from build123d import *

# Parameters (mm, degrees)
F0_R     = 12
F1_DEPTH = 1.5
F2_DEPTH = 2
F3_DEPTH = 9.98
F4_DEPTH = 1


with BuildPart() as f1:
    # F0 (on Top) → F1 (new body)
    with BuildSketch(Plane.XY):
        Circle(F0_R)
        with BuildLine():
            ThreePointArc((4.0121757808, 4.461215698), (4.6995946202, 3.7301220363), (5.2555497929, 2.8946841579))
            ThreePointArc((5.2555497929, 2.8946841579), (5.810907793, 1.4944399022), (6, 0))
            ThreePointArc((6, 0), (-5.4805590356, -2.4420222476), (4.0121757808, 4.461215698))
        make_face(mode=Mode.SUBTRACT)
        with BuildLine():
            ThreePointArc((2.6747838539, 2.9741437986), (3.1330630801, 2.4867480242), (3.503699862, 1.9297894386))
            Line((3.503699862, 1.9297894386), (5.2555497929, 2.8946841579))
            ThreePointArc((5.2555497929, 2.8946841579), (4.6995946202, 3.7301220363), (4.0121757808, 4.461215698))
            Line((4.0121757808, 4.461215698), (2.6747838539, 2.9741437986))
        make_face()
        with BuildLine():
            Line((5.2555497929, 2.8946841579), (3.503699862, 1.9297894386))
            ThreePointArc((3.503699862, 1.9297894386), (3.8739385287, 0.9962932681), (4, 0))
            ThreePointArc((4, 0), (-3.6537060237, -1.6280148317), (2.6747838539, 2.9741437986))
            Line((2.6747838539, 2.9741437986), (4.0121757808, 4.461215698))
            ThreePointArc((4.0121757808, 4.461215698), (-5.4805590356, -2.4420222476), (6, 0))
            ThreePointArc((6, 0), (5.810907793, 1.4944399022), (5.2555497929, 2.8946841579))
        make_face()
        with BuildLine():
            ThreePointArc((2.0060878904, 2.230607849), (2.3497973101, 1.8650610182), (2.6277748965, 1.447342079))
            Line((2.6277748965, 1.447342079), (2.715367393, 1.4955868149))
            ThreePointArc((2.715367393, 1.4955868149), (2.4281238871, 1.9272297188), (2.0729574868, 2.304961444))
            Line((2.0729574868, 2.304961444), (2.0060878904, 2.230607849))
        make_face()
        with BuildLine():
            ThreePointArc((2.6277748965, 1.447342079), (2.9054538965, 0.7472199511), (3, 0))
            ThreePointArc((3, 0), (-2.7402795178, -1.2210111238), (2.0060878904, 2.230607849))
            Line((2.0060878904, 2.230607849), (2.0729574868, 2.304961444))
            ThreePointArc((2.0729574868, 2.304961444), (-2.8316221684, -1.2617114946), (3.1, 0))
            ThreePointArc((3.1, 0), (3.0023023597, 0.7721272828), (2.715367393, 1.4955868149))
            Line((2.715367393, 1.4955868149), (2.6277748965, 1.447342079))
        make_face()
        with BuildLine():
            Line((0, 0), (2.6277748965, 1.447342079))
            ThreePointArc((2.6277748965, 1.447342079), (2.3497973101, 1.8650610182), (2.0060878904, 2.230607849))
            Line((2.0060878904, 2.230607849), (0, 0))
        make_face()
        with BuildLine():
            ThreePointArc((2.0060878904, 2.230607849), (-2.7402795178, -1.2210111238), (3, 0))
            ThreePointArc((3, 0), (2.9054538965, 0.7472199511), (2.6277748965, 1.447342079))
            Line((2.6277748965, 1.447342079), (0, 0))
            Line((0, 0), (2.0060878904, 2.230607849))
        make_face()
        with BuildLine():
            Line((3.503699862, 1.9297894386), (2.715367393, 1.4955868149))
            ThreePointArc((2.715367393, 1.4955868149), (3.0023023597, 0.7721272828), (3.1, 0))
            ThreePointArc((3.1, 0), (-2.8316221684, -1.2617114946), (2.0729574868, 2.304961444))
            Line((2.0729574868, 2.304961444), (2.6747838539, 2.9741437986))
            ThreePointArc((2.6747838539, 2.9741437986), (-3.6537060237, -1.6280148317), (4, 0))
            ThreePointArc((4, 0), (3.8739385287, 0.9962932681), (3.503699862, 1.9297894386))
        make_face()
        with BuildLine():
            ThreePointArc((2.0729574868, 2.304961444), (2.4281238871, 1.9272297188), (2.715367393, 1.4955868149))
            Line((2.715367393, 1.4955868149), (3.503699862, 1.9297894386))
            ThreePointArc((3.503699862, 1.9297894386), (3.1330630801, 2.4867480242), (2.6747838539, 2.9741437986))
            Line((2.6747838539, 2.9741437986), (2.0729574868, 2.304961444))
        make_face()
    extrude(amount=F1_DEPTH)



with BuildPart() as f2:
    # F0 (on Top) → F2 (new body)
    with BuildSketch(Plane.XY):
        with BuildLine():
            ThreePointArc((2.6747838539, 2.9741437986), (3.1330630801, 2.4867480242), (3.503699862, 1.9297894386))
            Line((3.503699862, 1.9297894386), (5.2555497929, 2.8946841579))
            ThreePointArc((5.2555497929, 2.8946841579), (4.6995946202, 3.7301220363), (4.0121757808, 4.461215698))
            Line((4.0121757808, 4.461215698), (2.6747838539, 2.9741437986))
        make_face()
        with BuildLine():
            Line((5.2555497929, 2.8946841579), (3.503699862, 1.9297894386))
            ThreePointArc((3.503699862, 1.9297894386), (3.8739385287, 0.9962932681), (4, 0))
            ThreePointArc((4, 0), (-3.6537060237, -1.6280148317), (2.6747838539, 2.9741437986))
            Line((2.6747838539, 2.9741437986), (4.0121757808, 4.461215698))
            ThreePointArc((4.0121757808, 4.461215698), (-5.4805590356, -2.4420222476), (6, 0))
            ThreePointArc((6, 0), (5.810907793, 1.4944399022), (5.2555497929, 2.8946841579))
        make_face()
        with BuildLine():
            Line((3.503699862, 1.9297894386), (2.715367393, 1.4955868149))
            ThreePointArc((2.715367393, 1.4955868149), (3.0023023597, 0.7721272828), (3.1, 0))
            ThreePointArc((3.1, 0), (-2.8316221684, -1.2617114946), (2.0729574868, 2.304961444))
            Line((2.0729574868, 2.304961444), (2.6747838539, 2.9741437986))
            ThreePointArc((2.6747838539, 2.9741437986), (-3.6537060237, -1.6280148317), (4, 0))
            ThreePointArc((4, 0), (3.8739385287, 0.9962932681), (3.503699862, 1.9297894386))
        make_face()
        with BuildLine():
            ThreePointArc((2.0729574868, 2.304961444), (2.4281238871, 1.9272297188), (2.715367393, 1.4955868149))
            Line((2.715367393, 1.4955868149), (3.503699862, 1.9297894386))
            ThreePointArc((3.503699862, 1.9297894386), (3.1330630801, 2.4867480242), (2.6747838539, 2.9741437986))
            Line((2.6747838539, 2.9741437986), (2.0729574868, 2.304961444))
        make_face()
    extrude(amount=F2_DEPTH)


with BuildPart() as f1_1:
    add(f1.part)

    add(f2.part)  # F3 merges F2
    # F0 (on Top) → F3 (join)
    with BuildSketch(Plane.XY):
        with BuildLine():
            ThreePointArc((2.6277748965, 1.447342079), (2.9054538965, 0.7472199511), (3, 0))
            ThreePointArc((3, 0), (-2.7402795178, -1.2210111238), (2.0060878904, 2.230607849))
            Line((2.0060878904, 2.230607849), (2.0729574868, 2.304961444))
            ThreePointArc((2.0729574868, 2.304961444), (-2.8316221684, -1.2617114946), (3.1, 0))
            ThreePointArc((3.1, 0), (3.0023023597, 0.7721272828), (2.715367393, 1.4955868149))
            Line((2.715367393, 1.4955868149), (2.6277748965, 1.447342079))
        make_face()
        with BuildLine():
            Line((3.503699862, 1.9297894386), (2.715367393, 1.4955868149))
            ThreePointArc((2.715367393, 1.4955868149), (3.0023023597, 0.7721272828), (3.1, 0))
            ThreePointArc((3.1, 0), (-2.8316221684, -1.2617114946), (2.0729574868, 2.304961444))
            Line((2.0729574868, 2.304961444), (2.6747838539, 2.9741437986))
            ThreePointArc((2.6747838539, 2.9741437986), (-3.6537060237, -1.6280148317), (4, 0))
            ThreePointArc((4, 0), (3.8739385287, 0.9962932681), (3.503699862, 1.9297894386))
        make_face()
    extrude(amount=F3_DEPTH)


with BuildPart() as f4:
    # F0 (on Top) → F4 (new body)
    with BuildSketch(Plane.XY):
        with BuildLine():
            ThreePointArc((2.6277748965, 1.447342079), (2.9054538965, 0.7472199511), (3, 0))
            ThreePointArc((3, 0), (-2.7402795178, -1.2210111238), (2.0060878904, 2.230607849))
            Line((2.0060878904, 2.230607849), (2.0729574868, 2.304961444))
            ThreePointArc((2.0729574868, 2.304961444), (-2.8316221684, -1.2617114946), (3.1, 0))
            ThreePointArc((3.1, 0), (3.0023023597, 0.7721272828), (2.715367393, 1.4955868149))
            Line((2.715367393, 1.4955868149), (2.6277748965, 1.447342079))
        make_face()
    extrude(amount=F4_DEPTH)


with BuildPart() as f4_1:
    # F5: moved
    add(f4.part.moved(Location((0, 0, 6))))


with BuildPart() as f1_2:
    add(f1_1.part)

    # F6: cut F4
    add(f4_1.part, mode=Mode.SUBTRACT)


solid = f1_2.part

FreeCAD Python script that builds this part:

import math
import FreeCAD as App
import Part
import Sketcher

V = App.Vector

doc = App.newDocument("Part")
body = doc.addObject("PartDesign::Body", "Body")

sketch1 = body.newObject("Sketcher::SketchObject", "Sketch")
sketch1.AttachmentSupport = (doc.getObject("XY_Plane"), [""])
sketch1.MapMode = "FlatFace"
sketch1.addGeometry(Part.Circle(V(0, 0, 0), V(0, 0, 1), 12), False)
sketch1.addConstraint(Sketcher.Constraint("Coincident", 0, 3, -1, 1))
sketch1.addConstraint(Sketcher.Constraint("Diameter", 0, 24.0))
pad1 = body.newObject("PartDesign::Pad", "Pad")
pad1.Profile = sketch1
pad1.Length = 1.5
body2 = doc.addObject("PartDesign::Body", "Body001")

sketch2 = body2.newObject("Sketcher::SketchObject", "Sketch001")
sketch2.AttachmentSupport = (doc.getObject("XY_Plane001"), [""])
sketch2.MapMode = "FlatFace"
sketch2.addGeometry(Part.ArcOfCircle(Part.Circle(V(0, 0, 0), V(0, 0, 1), 6), math.radians(28.85), math.radians(48.03)), False)
sketch2.addGeometry(Part.ArcOfCircle(Part.Circle(V(0, 0, 0), V(0, 0, 1), 6), math.radians(48), math.radians(360)), False)
sketch2.addGeometry(Part.ArcOfCircle(Part.Circle(V(0, 0, 0), V(0, 0, 1), 6), math.radians(0), math.radians(29)), False)
sketch2.addGeometry(Part.ArcOfCircle(Part.Circle(V(0, 0, 0), V(0, 0, 1), 3.1), math.radians(0), math.radians(29)), False)
sketch2.addGeometry(Part.ArcOfCircle(Part.Circle(V(0, 0, 0), V(0, 0, 1), 3.1), math.radians(48), math.radians(360)), False)
sketch2.addGeometry(Part.ArcOfCircle(Part.Circle(V(0, 0, 0), V(0, 0, 1), 3.1), math.radians(28.85), math.radians(48.03)), False)
sketch2.addConstraint(Sketcher.Constraint("Tangent", 0, 2, 1, 1))
sketch2.addConstraint(Sketcher.Constraint("Tangent", 1, 2, 2, 1))
sketch2.addConstraint(Sketcher.Constraint("Tangent", 2, 2, 0, 1))
sketch2.addConstraint(Sketcher.Constraint("Tangent", 3, 1, 4, 2))
sketch2.addConstraint(Sketcher.Constraint("Tangent", 4, 1, 5, 2))
sketch2.addConstraint(Sketcher.Constraint("Tangent", 5, 1, 3, 2))
sketch2.addConstraint(Sketcher.Constraint("Coincident", 0, 3, -1, 1))
sketch2.addConstraint(Sketcher.Constraint("Coincident", 3, 3, -1, 1))
sketch2.addConstraint(Sketcher.Constraint("PointOnObject", 1, 2, -1))
sketch2.addConstraint(Sketcher.Constraint("PointOnObject", 3, 1, -1))
sketch2.addConstraint(Sketcher.Constraint("Radius", 0, 6.0))
sketch2.addConstraint(Sketcher.Constraint("Radius", 3, 3.1))
sketch2.addConstraint(Sketcher.Constraint("DistanceX", -1, 1, 2, 2, 5.25555))
sketch2.addConstraint(Sketcher.Constraint("DistanceY", -1, 1, 4, 1, 2.304961))
sketch2.addConstraint(Sketcher.Constraint("DistanceY", 2, 2, 0, 2, 1.566532))
sketch2.addConstraint(Sketcher.Constraint("DistanceX", 4, 1, 5, 1, 0.64241))
pad2 = body2.newObject("PartDesign::Pad", "Pad001")
pad2.Profile = sketch2
pad2.Length = 2
doc.recompute()

boolean = body.newObject("PartDesign::Boolean", "Boolean")
boolean.Type = "Fuse"
boolean.addObjects([body2])

sketch3 = body.newObject("Sketcher::SketchObject", "Sketch002")
sketch3.AttachmentSupport = (doc.getObject("XY_Plane"), [""])
sketch3.MapMode = "FlatFace"
sketch3.addGeometry(Part.ArcOfCircle(Part.Circle(V(0, 0, 0), V(0, 0, 1), 3), math.radians(0), math.radians(29)), False)
sketch3.addGeometry(Part.ArcOfCircle(Part.Circle(V(0, 0, 0), V(0, 0, 1), 3), math.radians(48), math.radians(360)), False)
sketch3.addGeometry(Part.LineSegment(V(2.01, 2.23, 0), V(2.07, 2.3, 0)), False)
sketch3.addGeometry(Part.LineSegment(V(2.07, 2.3, 0), V(2.67, 2.97, 0)), False)
sketch3.addGeometry(Part.ArcOfCircle(Part.Circle(V(0, 0, 0), V(0, 0, 1), 4), math.radians(48), math.radians(360)), False)
sketch3.addGeometry(Part.ArcOfCircle(Part.Circle(V(0, 0, 0), V(0, 0, 1), 4), math.radians(0), math.radians(29)), False)
sketch3.addGeometry(Part.LineSegment(V(3.5, 1.93, 0), V(2.72, 1.5, 0)), False)
sketch3.addGeometry(Part.LineSegment(V(2.72, 1.5, 0), V(2.63, 1.45, 0)), False)
sketch3.addConstraint(Sketcher.Constraint("Tangent", 0, 1, 1, 2))
sketch3.addConstraint(Sketcher.Constraint("Coincident", 1, 1, 2, 1))
sketch3.addConstraint(Sketcher.Constraint("Coincident", 2, 2, 3, 1))
sketch3.addConstraint(Sketcher.Constraint("Coincident", 3, 2, 4, 1))
sketch3.addConstraint(Sketcher.Constraint("Tangent", 4, 2, 5, 1))
sketch3.addConstraint(Sketcher.Constraint("Coincident", 5, 2, 6, 1))
sketch3.addConstraint(Sketcher.Constraint("Coincident", 6, 2, 7, 1))
sketch3.addConstraint(Sketcher.Constraint("Coincident", 7, 2, 0, 2))
sketch3.addConstraint(Sketcher.Constraint("Coincident", 0, 3, -1, 1))
sketch3.addConstraint(Sketcher.Constraint("Coincident", 4, 3, -1, 1))
sketch3.addConstraint(Sketcher.Constraint("Equal", 0, 1))
sketch3.addConstraint(Sketcher.Constraint("Equal", 4, 5))
sketch3.addConstraint(Sketcher.Constraint("PointOnObject", 0, 1, -1))
sketch3.addConstraint(Sketcher.Constraint("PointOnObject", 4, 2, -1))
sketch3.addConstraint(Sketcher.Constraint("Parallel", 2, 3))
sketch3.addConstraint(Sketcher.Constraint("Parallel", 6, 7))
sketch3.addConstraint(Sketcher.Constraint("Equal", 3, 6))
sketch3.addConstraint(Sketcher.Constraint("Radius", 0, 3.0))
sketch3.addConstraint(Sketcher.Constraint("Radius", 4, 4.0))
sketch3.addConstraint(Sketcher.Constraint("Distance", 2, 0.1))
sketch3.addConstraint(Sketcher.Constraint("DistanceX", -1, 1, 5, 2, 3.5037))
sketch3.addConstraint(Sketcher.Constraint("DistanceY", -1, 1, 2, 2, 2.304961))
sketch3.addConstraint(Sketcher.Constraint("DistanceX", 1, 1, 2, 2, 0.06687))
sketch3.addConstraint(Sketcher.Constraint("DistanceX", 1, 1, 6, 2, 0.70928))
pad3 = body.newObject("PartDesign::Pad", "Pad002")
pad3.Profile = sketch3
pad3.Length = 9.98
body3 = doc.addObject("PartDesign::Body", "Body002")

sketch4 = body3.newObject("Sketcher::SketchObject", "Sketch003")
sketch4.AttachmentSupport = (doc.getObject("XY_Plane002"), [""])
sketch4.MapMode = "FlatFace"
sketch4.addGeometry(Part.ArcOfCircle(Part.Circle(V(0, 0, 0), V(0, 0, 1), 3), math.radians(0), math.radians(29)), False)
sketch4.addGeometry(Part.ArcOfCircle(Part.Circle(V(0, 0, 0), V(0, 0, 1), 3), math.radians(48), math.radians(360)), False)
sketch4.addGeometry(Part.LineSegment(V(2.01, 2.23, 0), V(2.07, 2.3, 0)), False)
sketch4.addGeometry(Part.ArcOfCircle(Part.Circle(V(0, 0, 0), V(0, 0, 1), 3.1), math.radians(48), math.radians(360)), False)
sketch4.addGeometry(Part.ArcOfCircle(Part.Circle(V(0, 0, 0), V(0, 0, 1), 3.1), math.radians(0), math.radians(29)), False)
sketch4.addGeometry(Part.LineSegment(V(2.72, 1.5, 0), V(2.63, 1.45, 0)), False)
sketch4.addConstraint(Sketcher.Constraint("Tangent", 0, 1, 1, 2))
sketch4.addConstraint(Sketcher.Constraint("Coincident", 1, 1, 2, 1))
sketch4.addConstraint(Sketcher.Constraint("Coincident", 2, 2, 3, 1))
sketch4.addConstraint(Sketcher.Constraint("Tangent", 3, 2, 4, 1))
sketch4.addConstraint(Sketcher.Constraint("Coincident", 4, 2, 5, 1))
sketch4.addConstraint(Sketcher.Constraint("Coincident", 5, 2, 0, 2))
sketch4.addConstraint(Sketcher.Constraint("Coincident", 0, 3, -1, 1))
sketch4.addConstraint(Sketcher.Constraint("Coincident", 3, 3, -1, 1))
sketch4.addConstraint(Sketcher.Constraint("Equal", 0, 1))
sketch4.addConstraint(Sketcher.Constraint("Equal", 3, 4))
sketch4.addConstraint(Sketcher.Constraint("PointOnObject", 0, 1, -1))
sketch4.addConstraint(Sketcher.Constraint("PointOnObject", 3, 2, -1))
sketch4.addConstraint(Sketcher.Constraint("Radius", 0, 3.0))
sketch4.addConstraint(Sketcher.Constraint("Radius", 3, 3.1))
sketch4.addConstraint(Sketcher.Constraint("DistanceY", -1, 1, 2, 2, 2.304961))
sketch4.addConstraint(Sketcher.Constraint("DistanceX", 1, 1, 2, 2, 0.06687))
sketch4.addConstraint(Sketcher.Constraint("DistanceX", 1, 1, 4, 2, 0.70928))
sketch4.addConstraint(Sketcher.Constraint("DistanceY", 5, 2, 2, 2, 0.857619))
pad4 = body3.newObject("PartDesign::Pad", "Pad003")
pad4.Profile = sketch4
pad4.Length = 1
body4 = doc.addObject("PartDesign::Body", "Body003")
doc.recompute()

body3.Placement = App.Placement(V(0, 0, 6), App.Rotation(V(0, 0, 1), 0))
boolean2 = body4.newObject("PartDesign::Boolean", "Boolean001")
boolean2.Type = "Fuse"
boolean2.addObjects([body3])
doc.recompute()

boolean3 = body.newObject("PartDesign::Boolean", "Boolean002")
boolean3.Type = "Cut"
boolean3.addObjects([body4])

doc.recompute()
